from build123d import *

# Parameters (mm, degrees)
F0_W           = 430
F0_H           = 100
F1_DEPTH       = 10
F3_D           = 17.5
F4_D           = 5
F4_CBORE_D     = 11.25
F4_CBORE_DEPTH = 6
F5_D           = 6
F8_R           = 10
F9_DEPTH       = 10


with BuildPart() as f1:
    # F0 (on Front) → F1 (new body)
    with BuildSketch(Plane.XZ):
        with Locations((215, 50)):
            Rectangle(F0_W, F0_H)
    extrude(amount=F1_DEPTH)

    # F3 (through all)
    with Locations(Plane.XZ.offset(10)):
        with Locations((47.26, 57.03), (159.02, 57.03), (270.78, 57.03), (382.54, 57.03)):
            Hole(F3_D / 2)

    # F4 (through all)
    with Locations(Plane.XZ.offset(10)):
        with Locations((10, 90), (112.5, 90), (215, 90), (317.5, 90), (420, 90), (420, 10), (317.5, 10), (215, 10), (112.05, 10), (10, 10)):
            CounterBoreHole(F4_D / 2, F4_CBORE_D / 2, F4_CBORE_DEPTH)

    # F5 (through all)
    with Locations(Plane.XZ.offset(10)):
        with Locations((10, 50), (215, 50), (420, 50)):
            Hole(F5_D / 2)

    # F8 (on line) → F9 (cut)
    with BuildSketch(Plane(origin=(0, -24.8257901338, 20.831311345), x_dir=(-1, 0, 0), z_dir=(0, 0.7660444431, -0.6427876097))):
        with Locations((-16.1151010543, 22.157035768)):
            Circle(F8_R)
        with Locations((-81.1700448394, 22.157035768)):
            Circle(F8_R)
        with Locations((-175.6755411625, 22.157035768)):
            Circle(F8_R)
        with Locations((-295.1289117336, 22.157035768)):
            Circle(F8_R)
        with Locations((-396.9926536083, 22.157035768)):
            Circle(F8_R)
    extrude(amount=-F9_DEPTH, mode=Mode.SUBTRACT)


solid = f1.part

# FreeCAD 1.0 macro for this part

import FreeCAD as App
import Part
import Sketcher
from FreeCAD import Vector


def add_polygon(sketch, points):
    """Adds a closed chain of lines whose ends are joined by coincident constraints."""
    first, n = sketch.GeometryCount, len(points)
    for a, b in zip(points, points[1:] + points[:1]):
        sketch.addGeometry(Part.LineSegment(App.Vector(*a, 0), App.Vector(*b, 0)), False)
    for i in range(n):
        sketch.addConstraint(Sketcher.Constraint("Coincident", first + i, 2, first + (i + 1) % n, 1))

doc = App.newDocument("Part")
body = doc.addObject("PartDesign::Body", "Body")

sketch1 = body.newObject("Sketcher::SketchObject", "Sketch")
sketch1.AttachmentSupport = (doc.getObject("XZ_Plane"), [""])
sketch1.MapMode = "FlatFace"
add_polygon(sketch1, [(0, 100), (0, 0), (430, 0), (430, 100)])
sketch1.addConstraint([
    Sketcher.Constraint("Vertical", 0),
    Sketcher.Constraint("Horizontal", 1),
    Sketcher.Constraint("Vertical", 2),
    Sketcher.Constraint("Horizontal", 3),
    Sketcher.Constraint("Coincident", 0, 2, -1, 1),
    Sketcher.Constraint("DistanceX", 1, 1, 1, 2, 430.0),
    Sketcher.Constraint("DistanceY", 0, 2, 0, 1, 100.0),
])
pad1 = body.newObject("PartDesign::Pad", "Pad")
pad1.Profile = sketch1
pad1.Length = 10

sketch2 = body.newObject("Sketcher::SketchObject", "Sketch001")
sketch2.AttachmentSupport = (doc.getObject("XZ_Plane"), [""])
sketch2.MapMode = "FlatFace"
sketch2.AttachmentOffset = App.Placement(Vector(0, 0, 10), App.Rotation())
sketch2.addGeometry([
    Part.Circle(Vector(47.26, 57.03, 0), Vector(0, 0, 1), 8.75),
    Part.Circle(Vector(159.02, 57.03, 0), Vector(0, 0, 1), 8.75),
    Part.Circle(Vector(270.78, 57.03, 0), Vector(0, 0, 1), 8.75),
    Part.Circle(Vector(382.54, 57.03, 0), Vector(0, 0, 1), 8.75),
], False)
sketch2.addConstraint([
    Sketcher.Constraint("Equal", 0, 1),
    Sketcher.Constraint("Equal", 1, 2),
    Sketcher.Constraint("Equal", 2, 3),
    Sketcher.Constraint("Horizontal", 0, 3, 1, 3),
    Sketcher.Constraint("Horizontal", 1, 3, 2, 3),
    Sketcher.Constraint("Horizontal", 2, 3, 3, 3),
    Sketcher.Constraint("Diameter", 0, 17.5),
    Sketcher.Constraint("DistanceX", -1, 1, 0, 3, 47.26),
    Sketcher.Constraint("DistanceY", -1, 1, 0, 3, 57.03),
    Sketcher.Constraint("DistanceX", -1, 1, 1, 3, 159.02),
    Sketcher.Constraint("DistanceX", -1, 1, 2, 3, 270.78),
    Sketcher.Constraint("DistanceX", -1, 1, 3, 3, 382.54),
])
doc.recompute()
hole = body.newObject("PartDesign::Hole", "Hole")
hole.Profile = sketch2
hole.ThreadType = "None"
hole.Diameter = 17.5
hole.DepthType = "ThroughAll"

sketch3 = body.newObject("Sketcher::SketchObject", "Sketch002")
sketch3.AttachmentSupport = (doc.getObject("XZ_Plane"), [""])
sketch3.MapMode = "FlatFace"
sketch3.AttachmentOffset = App.Placement(Vector(0, 0, 10), App.Rotation())
sketch3.addGeometry([
    Part.Circle(Vector(10, 90, 0), Vector(0, 0, 1), 2.5),
    Part.Circle(Vector(112.5, 90, 0), Vector(0, 0, 1), 2.5),
    Part.Circle(Vector(215, 90, 0), Vector(0, 0, 1), 2.5),
    Part.Circle(Vector(317.5, 90, 0), Vector(0, 0, 1), 2.5),
    Part.Circle(Vector(420, 90, 0), Vector(0, 0, 1), 2.5),
    Part.Circle(Vector(420, 10, 0), Vector(0, 0, 1), 2.5),
    Part.Circle(Vector(317.5, 10, 0), Vector(0, 0, 1), 2.5),
    Part.Circle(Vector(215, 10, 0), Vector(0, 0, 1), 2.5),
    Part.Circle(Vector(112.05, 10, 0), Vector(0, 0, 1), 2.5),
    Part.Circle(Vector(10, 10, 0), Vector(0, 0, 1), 2.5),
], False)
sketch3.addConstraint([
    Sketcher.Constraint("Equal", 0, 1),
    Sketcher.Constraint("Equal", 1, 2),
    Sketcher.Constraint("Equal", 2, 3),
    Sketcher.Constraint("Equal", 3, 4),
    Sketcher.Constraint("Equal", 4, 5),
    Sketcher.Constraint("Equal", 5, 6),
    Sketcher.Constraint("Equal", 6, 7),
    Sketcher.Constraint("Equal", 7, 8),
    Sketcher.Constraint("Equal", 8, 9),
    Sketcher.Constraint("Horizontal", 0, 3, 1, 3),
    Sketcher.Constraint("Horizontal", 1, 3, 2, 3),
    Sketcher.Constraint("Horizontal", 2, 3, 3, 3),
    Sketcher.Constraint("Horizontal", 3, 3, 4, 3),
    Sketcher.Constraint("Horizontal", 5, 3, 6, 3),
    Sketcher.Constraint("Horizontal", 6, 3, 7, 3),
    Sketcher.Constraint("Horizontal", 7, 3, 8, 3),
    Sketcher.Constraint("Horizontal", 8, 3, 9, 3),
    Sketcher.Constraint("Vertical", 4, 3, 5, 3),
    Sketcher.Constraint("Vertical", 3, 3, 6, 3),
    Sketcher.Constraint("Vertical", 2, 3, 7, 3),
    Sketcher.Constraint("Vertical", 0, 3, 9, 3),
    Sketcher.Constraint("Diameter", 0, 5.0),
    Sketcher.Constraint("DistanceX", -1, 1, 0, 3, 10.0),
    Sketcher.Constraint("DistanceY", -1, 1, 0, 3, 90.0),
    Sketcher.Constraint("DistanceX", -1, 1, 2, 3, 215.0),
    Sketcher.Constraint("DistanceX", -1, 1, 4, 3, 420.0),
    Sketcher.Constraint("DistanceY", -1, 1, 5, 3, 10.0),
    Sketcher.Constraint("DistanceX", 1, 3, 3, 3, 205.0),
    Sketcher.Constraint("DistanceX", -1, 1, 1, 3, 112.5),
    Sketcher.Constraint("DistanceX", -1, 1, 8, 3, 112.05),
])
doc.recompute()
hole2 = body.newObject("PartDesign::Hole", "Hole001")
hole2.Profile = sketch3
hole2.ThreadType = "None"
hole2.Diameter = 5
hole2.DepthType = "ThroughAll"
hole2.HoleCutType = "Counterbore"
hole2.HoleCutDiameter = 11.25
hole2.HoleCutDepth = 6

sketch4 = body.newObject("Sketcher::SketchObject", "Sketch003")
sketch4.AttachmentSupport = (doc.getObject("XZ_Plane"), [""])
sketch4.MapMode = "FlatFace"
sketch4.AttachmentOffset = App.Placement(Vector(0, 0, 10), App.Rotation())
sketch4.addGeometry([
    Part.Circle(Vector(10, 50, 0), Vector(0, 0, 1), 3),
    Part.Circle(Vector(215, 50, 0), Vector(0, 0, 1), 3),
    Part.Circle(Vector(420, 50, 0), Vector(0, 0, 1), 3),
], False)
sketch4.addConstraint([
    Sketcher.Constraint("Equal", 0, 1),
    Sketcher.Constraint("Equal", 1, 2),
    Sketcher.Constraint("Horizontal", 0, 3, 1, 3),
    Sketcher.Constraint("Horizontal", 1, 3, 2, 3),
    Sketcher.Constraint("Diameter", 0, 6.0),
    Sketcher.Constraint("DistanceX", -1, 1, 0, 3, 10.0),
    Sketcher.Constraint("DistanceY", -1, 1, 0, 3, 50.0),
    Sketcher.Constraint("DistanceX", -1, 1, 1, 3, 215.0),
    Sketcher.Constraint("DistanceX", -1, 1, 2, 3, 420.0),
])
doc.recompute()
hole3 = body.newObject("PartDesign::Hole", "Hole002")
hole3.Profile = sketch4
hole3.ThreadType = "None"
hole3.Diameter = 6
hole3.DepthType = "ThroughAll"

sketch5 = body.newObject("Sketcher::SketchObject", "Sketch004")
sketch5.Placement = App.Placement(Vector(0, -24.82579, 20.831311), App.Rotation(Vector(-1, 0, 0), Vector(0, 0.64278761, 0.766044443), Vector(0, 0.766044443, -0.64278761), "ZXY"))
sketch5.addGeometry([
    Part.Circle(Vector(-16.115101, 22.157036, 0), Vector(0, 0, 1), 10),
    Part.Circle(Vector(-81.170045, 22.157036, 0), Vector(0, 0, 1), 10),
    Part.Circle(Vector(-175.675541, 22.157036, 0), Vector(0, 0, 1), 10),
    Part.Circle(Vector(-295.128912, 22.157036, 0), Vector(0, 0, 1), 10),
    Part.Circle(Vector(-396.992654, 22.157036, 0), Vector(0, 0, 1), 10),
], False)
sketch5.addConstraint([
    Sketcher.Constraint("Equal", 0, 1),
    Sketcher.Constraint("Equal", 1, 2),
    Sketcher.Constraint("Equal", 2, 3),
    Sketcher.Constraint("Equal", 3, 4),
    Sketcher.Constraint("Horizontal", 0, 3, 1, 3),
    Sketcher.Constraint("Horizontal", 1, 3, 2, 3),
    Sketcher.Constraint("Horizontal", 2, 3, 3, 3),
    Sketcher.Constraint("Horizontal", 3, 3, 4, 3),
    Sketcher.Constraint("Diameter", 0, 20.0),
    Sketcher.Constraint("DistanceX", 0, 3, -1, 1, 16.115101),
    Sketcher.Constraint("DistanceX", 2, 3, -1, 1, 175.675541),
    Sketcher.Constraint("DistanceX", 3, 3, -1, 1, 295.128912),
    Sketcher.Constraint("DistanceX", 4, 3, 3, 3, 101.863742),
    Sketcher.Constraint("DistanceX", 4, 3, 1, 3, 315.822609),
    Sketcher.Constraint("DistanceY", -1, 1, 0, 3, 22.157036),
])
pocket1 = body.newObject("PartDesign::Pocket", "Pocket")
pocket1.Profile = sketch5
pocket1.Length = 10

doc.recompute()
